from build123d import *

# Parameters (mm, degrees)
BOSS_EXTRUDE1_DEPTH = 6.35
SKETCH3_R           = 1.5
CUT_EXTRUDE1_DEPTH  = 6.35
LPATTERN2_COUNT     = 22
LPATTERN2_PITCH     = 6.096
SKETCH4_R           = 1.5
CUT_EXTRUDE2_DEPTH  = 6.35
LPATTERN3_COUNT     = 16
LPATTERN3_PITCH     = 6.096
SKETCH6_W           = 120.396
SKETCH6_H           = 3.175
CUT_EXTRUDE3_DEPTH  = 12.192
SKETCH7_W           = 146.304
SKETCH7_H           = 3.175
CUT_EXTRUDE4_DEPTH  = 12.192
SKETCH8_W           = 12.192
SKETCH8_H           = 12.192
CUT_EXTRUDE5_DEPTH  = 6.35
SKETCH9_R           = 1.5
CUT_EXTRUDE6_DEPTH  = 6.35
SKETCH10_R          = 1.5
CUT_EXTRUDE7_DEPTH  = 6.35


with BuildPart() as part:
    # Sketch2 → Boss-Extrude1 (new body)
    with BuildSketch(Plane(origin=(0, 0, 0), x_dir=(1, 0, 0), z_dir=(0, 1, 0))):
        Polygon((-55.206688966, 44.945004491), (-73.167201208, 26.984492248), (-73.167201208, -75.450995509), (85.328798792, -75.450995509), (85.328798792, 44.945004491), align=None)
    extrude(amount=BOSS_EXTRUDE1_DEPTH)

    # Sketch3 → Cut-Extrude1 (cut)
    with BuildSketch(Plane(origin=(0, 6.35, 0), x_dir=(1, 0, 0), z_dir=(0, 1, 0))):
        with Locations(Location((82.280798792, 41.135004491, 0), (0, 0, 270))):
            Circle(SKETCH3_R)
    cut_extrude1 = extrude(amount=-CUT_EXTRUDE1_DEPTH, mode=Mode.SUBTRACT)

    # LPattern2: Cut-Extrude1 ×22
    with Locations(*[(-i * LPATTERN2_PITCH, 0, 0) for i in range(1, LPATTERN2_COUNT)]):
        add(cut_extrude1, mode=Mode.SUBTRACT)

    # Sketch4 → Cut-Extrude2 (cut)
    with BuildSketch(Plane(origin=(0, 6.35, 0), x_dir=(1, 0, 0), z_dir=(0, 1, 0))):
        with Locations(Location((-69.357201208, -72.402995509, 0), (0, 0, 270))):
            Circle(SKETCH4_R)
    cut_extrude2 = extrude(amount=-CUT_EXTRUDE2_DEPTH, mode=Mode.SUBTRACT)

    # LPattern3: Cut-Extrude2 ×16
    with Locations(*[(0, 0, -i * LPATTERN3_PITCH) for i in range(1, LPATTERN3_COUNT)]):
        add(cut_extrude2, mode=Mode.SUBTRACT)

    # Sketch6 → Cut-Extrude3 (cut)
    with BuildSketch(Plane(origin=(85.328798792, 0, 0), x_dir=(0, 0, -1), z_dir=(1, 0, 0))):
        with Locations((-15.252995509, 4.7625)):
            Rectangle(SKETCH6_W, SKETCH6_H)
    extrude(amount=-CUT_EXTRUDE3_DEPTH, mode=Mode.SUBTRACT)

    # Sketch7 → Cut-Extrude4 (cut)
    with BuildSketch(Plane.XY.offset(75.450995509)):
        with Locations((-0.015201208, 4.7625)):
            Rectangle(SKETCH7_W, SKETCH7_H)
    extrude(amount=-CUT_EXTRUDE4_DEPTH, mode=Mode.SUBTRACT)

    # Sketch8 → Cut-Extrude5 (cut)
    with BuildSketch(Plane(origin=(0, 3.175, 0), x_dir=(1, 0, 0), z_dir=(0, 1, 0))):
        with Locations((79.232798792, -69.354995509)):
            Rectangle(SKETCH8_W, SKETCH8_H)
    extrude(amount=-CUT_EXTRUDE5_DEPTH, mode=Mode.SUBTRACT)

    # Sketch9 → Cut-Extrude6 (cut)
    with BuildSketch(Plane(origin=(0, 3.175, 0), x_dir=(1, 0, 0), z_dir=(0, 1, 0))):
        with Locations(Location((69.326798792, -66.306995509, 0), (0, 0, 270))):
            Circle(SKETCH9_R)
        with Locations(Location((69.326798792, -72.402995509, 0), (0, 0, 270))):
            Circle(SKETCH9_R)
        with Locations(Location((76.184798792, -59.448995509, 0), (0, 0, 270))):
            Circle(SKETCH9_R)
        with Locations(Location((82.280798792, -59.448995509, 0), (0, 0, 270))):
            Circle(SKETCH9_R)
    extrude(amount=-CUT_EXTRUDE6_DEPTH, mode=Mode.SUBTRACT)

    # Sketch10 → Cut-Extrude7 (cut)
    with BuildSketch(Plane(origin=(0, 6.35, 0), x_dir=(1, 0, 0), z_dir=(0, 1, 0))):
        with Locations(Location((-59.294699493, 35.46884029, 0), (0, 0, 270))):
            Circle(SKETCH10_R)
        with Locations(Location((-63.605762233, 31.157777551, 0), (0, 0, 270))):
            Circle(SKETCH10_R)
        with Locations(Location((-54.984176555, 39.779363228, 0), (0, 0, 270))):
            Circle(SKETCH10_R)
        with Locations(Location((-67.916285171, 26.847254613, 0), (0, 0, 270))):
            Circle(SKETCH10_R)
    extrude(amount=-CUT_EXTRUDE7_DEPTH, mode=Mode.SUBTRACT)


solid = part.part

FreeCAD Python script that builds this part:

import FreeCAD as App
import Part
import Sketcher
from FreeCAD import Vector
Q = App.Units.Quantity

doc = App.newDocument("Part")
body = doc.addObject("PartDesign::Body", "Body")

# Sketch on XZ plane
sketch1 = body.newObject("Sketcher::SketchObject", "Sketch")
sketch1.AttachmentSupport = (doc.getObject("XZ_Plane"), [""])
sketch1.MapMode = "FlatFace"
sketch1.addGeometry(Part.LineSegment(Vector(-55, -45, 0), Vector(-73, -27, 0)), False)
sketch1.addGeometry(Part.LineSegment(Vector(-73, -27, 0), Vector(-73, 75, 0)), False)
sketch1.addGeometry(Part.LineSegment(Vector(-73, 75, 0), Vector(85, 75, 0)), False)
sketch1.addGeometry(Part.LineSegment(Vector(85, 75, 0), Vector(85, -45, 0)), False)
sketch1.addGeometry(Part.LineSegment(Vector(85, -45, 0), Vector(-55, -45, 0)), False)
sketch1.addConstraint(Sketcher.Constraint("Coincident", 0, 2, 1, 1))
sketch1.addConstraint(Sketcher.Constraint("Coincident", 1, 2, 2, 1))
sketch1.addConstraint(Sketcher.Constraint("Coincident", 2, 2, 3, 1))
sketch1.addConstraint(Sketcher.Constraint("Coincident", 3, 2, 4, 1))
sketch1.addConstraint(Sketcher.Constraint("Coincident", 4, 2, 0, 1))
sketch1.addConstraint(Sketcher.Constraint("Vertical", 1))
sketch1.addConstraint(Sketcher.Constraint("Horizontal", 2))
sketch1.addConstraint(Sketcher.Constraint("Vertical", 3))
sketch1.addConstraint(Sketcher.Constraint("Horizontal", 4))
sketch1.addConstraint(Sketcher.Constraint("Distance", 0, Q("1 in")))
sketch1.addConstraint(Sketcher.Constraint("Angle", 0, Q("135 deg")))
sketch1.addConstraint(Sketcher.Constraint("DistanceX", 2, 1, 2, 2, Q("6.24 in")))
sketch1.addConstraint(Sketcher.Constraint("DistanceY", 3, 2, 3, 1, Q("4.74 in")))
sketch1.addConstraint(Sketcher.Constraint("DistanceX", 0, 2, -1, 1, Q("73.167201 mm")))
sketch1.addConstraint(Sketcher.Constraint("DistanceY", 0, 2, -1, 1, Q("26.984492 mm")))
pad1 = body.newObject("PartDesign::Pad", "Pad")
pad1.Profile = sketch1
pad1.Length = Q("0.25 in")
pad1.Reversed = True

# Sketch on XZ plane
sketch2 = body.newObject("Sketcher::SketchObject", "Sketch001")
sketch2.AttachmentSupport = (doc.getObject("XZ_Plane"), [""])
sketch2.MapMode = "FlatFace"
sketch2.AttachmentOffset = App.Placement(Vector(0, 0, -0.25 * 25.4), App.Rotation())
sketch2.addGeometry(Part.Circle(Vector(82.3, -41.1, 0), Vector(0, 0, 1), 1.5), False)
sketch2.addConstraint(Sketcher.Constraint("Diameter", 0, Q("3 mm")))
sketch2.addConstraint(Sketcher.Constraint("DistanceX", -1, 1, 0, 3, Q("82.280799 mm")))
sketch2.addConstraint(Sketcher.Constraint("DistanceY", 0, 3, -1, 1, Q("41.135004 mm")))
pocket1 = body.newObject("PartDesign::Pocket", "Pocket")
pocket1.Profile = sketch2
pocket1.Length = Q("0.25 in")
pocket1.Reversed = True
doc.recompute()

linearpattern = body.newObject("PartDesign::LinearPattern", "LinearPattern")
linearpattern.Originals = [pocket1]
linearpattern.Direction = (doc.getObject("X_Axis"), [""])
linearpattern.Mode = "offset"
linearpattern.Offset = Q("0.24 in")
linearpattern.Occurrences = 22
linearpattern.Reversed = True
body.Tip = linearpattern

# Sketch on XZ plane
sketch3 = body.newObject("Sketcher::SketchObject", "Sketch002")
sketch3.AttachmentSupport = (doc.getObject("XZ_Plane"), [""])
sketch3.MapMode = "FlatFace"
sketch3.AttachmentOffset = App.Placement(Vector(0, 0, -0.25 * 25.4), App.Rotation())
sketch3.addGeometry(Part.Circle(Vector(-69.4, 72.4, 0), Vector(0, 0, 1), 1.5), False)
sketch3.addConstraint(Sketcher.Constraint("Diameter", 0, Q("3 mm")))
sketch3.addConstraint(Sketcher.Constraint("DistanceX", 0, 3, -1, 1, Q("69.357201 mm")))
sketch3.addConstraint(Sketcher.Constraint("DistanceY", -1, 1, 0, 3, Q("72.402996 mm")))
pocket2 = body.newObject("PartDesign::Pocket", "Pocket001")
pocket2.Profile = sketch3
pocket2.Length = Q("0.25 in")
pocket2.Reversed = True
doc.recompute()

linearpattern2 = body.newObject("PartDesign::LinearPattern", "LinearPattern001")
linearpattern2.Originals = [pocket2]
linearpattern2.Direction = (doc.getObject("Z_Axis"), [""])
linearpattern2.Mode = "offset"
linearpattern2.Offset = Q("0.24 in")
linearpattern2.Occurrences = 16
linearpattern2.Reversed = True
body.Tip = linearpattern2

# Sketch on YZ plane
sketch4 = body.newObject("Sketcher::SketchObject", "Sketch003")
sketch4.AttachmentSupport = (doc.getObject("YZ_Plane"), [""])
sketch4.MapMode = "FlatFace"
sketch4.AttachmentOffset = App.Placement(Vector(0, 0, 85.328799), App.Rotation())
sketch4.addGeometry(Part.LineSegment(Vector(6.3, 75.5, 0), Vector(3.2, 75.5, 0)), False)
sketch4.addGeometry(Part.LineSegment(Vector(3.2, 75.5, 0), Vector(3.2, -44.9, 0)), False)
sketch4.addGeometry(Part.LineSegment(Vector(3.2, -44.9, 0), Vector(6.3, -44.9, 0)), False)
sketch4.addGeometry(Part.LineSegment(Vector(6.3, -44.9, 0), Vector(6.3, 75.5, 0)), False)
sketch4.addConstraint(Sketcher.Constraint("Coincident", 0, 2, 1, 1))
sketch4.addConstraint(Sketcher.Constraint("Coincident", 1, 2, 2, 1))
sketch4.addConstraint(Sketcher.Constraint("Coincident", 2, 2, 3, 1))
sketch4.addConstraint(Sketcher.Constraint("Coincident", 3, 2, 0, 1))
sketch4.addConstraint(Sketcher.Constraint("Horizontal", 0))
sketch4.addConstraint(Sketcher.Constraint("Vertical", 1))
sketch4.addConstraint(Sketcher.Constraint("Horizontal", 2))
sketch4.addConstraint(Sketcher.Constraint("Vertical", 3))
sketch4.addConstraint(Sketcher.Constraint("DistanceY", 1, 2, 1, 1, Q("4.74 in")))
sketch4.addConstraint(Sketcher.Constraint("DistanceX", 0, 2, 0, 1, Q("0.125 in")))
sketch4.addConstraint(Sketcher.Constraint("DistanceX", -1, 1, 2, 2, Q("0.25 in")))
sketch4.addConstraint(Sketcher.Constraint("DistanceY", -1, 1, 0, 2, Q("75.450996 mm")))
pocket3 = body.newObject("PartDesign::Pocket", "Pocket002")
pocket3.Profile = sketch4
pocket3.Length = Q("0.48 in")

# Sketch on XY plane
sketch5 = body.newObject("Sketcher::SketchObject", "Sketch004")
sketch5.AttachmentSupport = (doc.getObject("XY_Plane"), [""])
sketch5.MapMode = "FlatFace"
sketch5.AttachmentOffset = App.Placement(Vector(0, 0, 75.450996), App.Rotation())
sketch5.addGeometry(Part.LineSegment(Vector(-73.2, 6.3, 0), Vector(-73.2, 3.2, 0)), False)
sketch5.addGeometry(Part.LineSegment(Vector(-73.2, 3.2, 0), Vector(73.1, 3.2, 0)), False)
sketch5.addGeometry(Part.LineSegment(Vector(73.1, 3.2, 0), Vector(73.1, 6.3, 0)), False)
sketch5.addGeometry(Part.LineSegment(Vector(73.1, 6.3, 0), Vector(-73.2, 6.3, 0)), False)
sketch5.addConstraint(Sketcher.Constraint("Coincident", 0, 2, 1, 1))
sketch5.addConstraint(Sketcher.Constraint("Coincident", 1, 2, 2, 1))
sketch5.addConstraint(Sketcher.Constraint("Coincident", 2, 2, 3, 1))
sketch5.addConstraint(Sketcher.Constraint("Coincident", 3, 2, 0, 1))
sketch5.addConstraint(Sketcher.Constraint("Vertical", 0))
sketch5.addConstraint(Sketcher.Constraint("Horizontal", 1))
sketch5.addConstraint(Sketcher.Constraint("Vertical", 2))
sketch5.addConstraint(Sketcher.Constraint("Horizontal", 3))
sketch5.addConstraint(Sketcher.Constraint("DistanceX", 1, 1, 1, 2, Q("5.76 in")))
sketch5.addConstraint(Sketcher.Constraint("DistanceY", 0, 2, 0, 1, Q("0.125 in")))
sketch5.addConstraint(Sketcher.Constraint("DistanceY", -1, 1, 2, 2, Q("0.25 in")))
sketch5.addConstraint(Sketcher.Constraint("DistanceX", 0, 2, -1, 1, Q("73.167201 mm")))
pocket4 = body.newObject("PartDesign::Pocket", "Pocket003")
pocket4.Profile = sketch5
pocket4.Length = Q("0.48 in")

# Sketch on XZ plane
sketch6 = body.newObject("Sketcher::SketchObject", "Sketch005")
sketch6.AttachmentSupport = (doc.getObject("XZ_Plane"), [""])
sketch6.MapMode = "FlatFace"
sketch6.AttachmentOffset = App.Placement(Vector(0, 0, -0.125 * 25.4), App.Rotation())
sketch6.addGeometry(Part.LineSegment(Vector(73, 63, 0), Vector(73, 75, 0)), False)
sketch6.addGeometry(Part.LineSegment(Vector(73, 75, 0), Vector(85, 75, 0)), False)
sketch6.addGeometry(Part.LineSegment(Vector(85, 75, 0), Vector(85, 63, 0)), False)
sketch6.addGeometry(Part.LineSegment(Vector(85, 63, 0), Vector(73, 63, 0)), False)
sketch6.addConstraint(Sketcher.Constraint("Coincident", 0, 2, 1, 1))
sketch6.addConstraint(Sketcher.Constraint("Coincident", 1, 2, 2, 1))
sketch6.addConstraint(Sketcher.Constraint("Coincident", 2, 2, 3, 1))
sketch6.addConstraint(Sketcher.Constraint("Coincident", 3, 2, 0, 1))
sketch6.addConstraint(Sketcher.Constraint("Vertical", 0))
sketch6.addConstraint(Sketcher.Constraint("Horizontal", 1))
sketch6.addConstraint(Sketcher.Constraint("Vertical", 2))
sketch6.addConstraint(Sketcher.Constraint("Horizontal", 3))
sketch6.addConstraint(Sketcher.Constraint("Equal", 3, 0))
sketch6.addConstraint(Sketcher.Constraint("DistanceX", 1, 1, 1, 2, Q("0.48 in")))
sketch6.addConstraint(Sketcher.Constraint("DistanceX", -1, 1, 0, 2, Q("73.136799 mm")))
sketch6.addConstraint(Sketcher.Constraint("DistanceY", -1, 1, 0, 2, Q("75.450996 mm")))
pocket5 = body.newObject("PartDesign::Pocket", "Pocket004")
pocket5.Profile = sketch6
pocket5.Length = Q("0.25 in")
pocket5.Reversed = True

# Sketch on XZ plane
sketch7 = body.newObject("Sketcher::SketchObject", "Sketch006")
sketch7.AttachmentSupport = (doc.getObject("XZ_Plane"), [""])
sketch7.MapMode = "FlatFace"
sketch7.AttachmentOffset = App.Placement(Vector(0, 0, -0.125 * 25.4), App.Rotation())
sketch7.addGeometry(Part.Circle(Vector(69.3, 66.3, 0), Vector(0, 0, 1), 1.5), False)
sketch7.addGeometry(Part.Circle(Vector(69.3, 72.4, 0), Vector(0, 0, 1), 1.5), False)
sketch7.addGeometry(Part.Circle(Vector(76.2, 59.4, 0), Vector(0, 0, 1), 1.5), False)
sketch7.addGeometry(Part.Circle(Vector(82.3, 59.4, 0), Vector(0, 0, 1), 1.5), False)
sketch7.addConstraint(Sketcher.Constraint("Equal", 0, 1))
sketch7.addConstraint(Sketcher.Constraint("Equal", 1, 2))
sketch7.addConstraint(Sketcher.Constraint("Equal", 2, 3))
sketch7.addConstraint(Sketcher.Constraint("Horizontal", 2, 3, 3, 3))
sketch7.addConstraint(Sketcher.Constraint("Vertical", 0, 3, 1, 3))
sketch7.addConstraint(Sketcher.Constraint("Diameter", 0, Q("3 mm")))
sketch7.addConstraint(Sketcher.Constraint("DistanceY", 0, 3, 1, 3, Q("0.24 in")))
sketch7.addConstraint(Sketcher.Constraint("DistanceX", 0, 3, 2, 3, Q("0.27 in")))
sketch7.addConstraint(Sketcher.Constraint("DistanceY", 2, 3, 0, 3, Q("0.27 in")))
sketch7.addConstraint(Sketcher.Constraint("DistanceX", 2, 3, 3, 3, Q("0.24 in")))
sketch7.addConstraint(Sketcher.Constraint("DistanceX", -1, 1, 0, 3, Q("69.326799 mm")))
sketch7.addConstraint(Sketcher.Constraint("DistanceY", -1, 1, 0, 3, Q("66.306996 mm")))
pocket6 = body.newObject("PartDesign::Pocket", "Pocket005")
pocket6.Profile = sketch7
pocket6.Length = Q("0.25 in")
pocket6.Reversed = True

# Sketch on XZ plane
sketch8 = body.newObject("Sketcher::SketchObject", "Sketch007")
sketch8.AttachmentSupport = (doc.getObject("XZ_Plane"), [""])
sketch8.MapMode = "FlatFace"
sketch8.AttachmentOffset = App.Placement(Vector(0, 0, -0.25 * 25.4), App.Rotation())
sketch8.addGeometry(Part.Circle(Vector(-59.3, -35.5, 0), Vector(0, 0, 1), 1.5), False)
sketch8.addGeometry(Part.Circle(Vector(-63.6, -31.2, 0), Vector(0, 0, 1), 1.5), False)
sketch8.addGeometry(Part.Circle(Vector(-55, -39.8, 0), Vector(0, 0, 1), 1.5), False)
sketch8.addGeometry(Part.Circle(Vector(-67.9, -26.8, 0), Vector(0, 0, 1), 1.5), False)
sketch8.addConstraint(Sketcher.Constraint("Equal", 0, 1))
sketch8.addConstraint(Sketcher.Constraint("Equal", 1, 2))
sketch8.addConstraint(Sketcher.Constraint("Equal", 2, 3))
sketch8.addConstraint(Sketcher.Constraint("Diameter", 0, Q("3 mm")))
sketch8.addConstraint(Sketcher.Constraint("DistanceX", 0, 3, -1, 1, Q("59.294699 mm")))
sketch8.addConstraint(Sketcher.Constraint("DistanceY", 0, 3, -1, 1, Q("35.46884 mm")))
sketch8.addConstraint(Sketcher.Constraint("DistanceX", 3, 3, 2, 3, Q("12.932109 mm")))
sketch8.addConstraint(Sketcher.Constraint("DistanceY", 2, 3, 3, 3, Q("12.932109 mm")))
sketch8.addConstraint(Sketcher.Constraint("DistanceX", 1, 3, -1, 1, Q("63.605762 mm")))
sketch8.addConstraint(Sketcher.Constraint("DistanceY", 1, 3, -1, 1, Q("31.157778 mm")))
sketch8.addConstraint(Sketcher.Constraint("DistanceX", 2, 3, -1, 1, Q("54.984177 mm")))
sketch8.addConstraint(Sketcher.Constraint("DistanceY", 2, 3, -1, 1, Q("39.779363 mm")))
pocket7 = body.newObject("PartDesign::Pocket", "Pocket006")
pocket7.Profile = sketch8
pocket7.Length = Q("0.25 in")
pocket7.Reversed = True

doc.recompute()
